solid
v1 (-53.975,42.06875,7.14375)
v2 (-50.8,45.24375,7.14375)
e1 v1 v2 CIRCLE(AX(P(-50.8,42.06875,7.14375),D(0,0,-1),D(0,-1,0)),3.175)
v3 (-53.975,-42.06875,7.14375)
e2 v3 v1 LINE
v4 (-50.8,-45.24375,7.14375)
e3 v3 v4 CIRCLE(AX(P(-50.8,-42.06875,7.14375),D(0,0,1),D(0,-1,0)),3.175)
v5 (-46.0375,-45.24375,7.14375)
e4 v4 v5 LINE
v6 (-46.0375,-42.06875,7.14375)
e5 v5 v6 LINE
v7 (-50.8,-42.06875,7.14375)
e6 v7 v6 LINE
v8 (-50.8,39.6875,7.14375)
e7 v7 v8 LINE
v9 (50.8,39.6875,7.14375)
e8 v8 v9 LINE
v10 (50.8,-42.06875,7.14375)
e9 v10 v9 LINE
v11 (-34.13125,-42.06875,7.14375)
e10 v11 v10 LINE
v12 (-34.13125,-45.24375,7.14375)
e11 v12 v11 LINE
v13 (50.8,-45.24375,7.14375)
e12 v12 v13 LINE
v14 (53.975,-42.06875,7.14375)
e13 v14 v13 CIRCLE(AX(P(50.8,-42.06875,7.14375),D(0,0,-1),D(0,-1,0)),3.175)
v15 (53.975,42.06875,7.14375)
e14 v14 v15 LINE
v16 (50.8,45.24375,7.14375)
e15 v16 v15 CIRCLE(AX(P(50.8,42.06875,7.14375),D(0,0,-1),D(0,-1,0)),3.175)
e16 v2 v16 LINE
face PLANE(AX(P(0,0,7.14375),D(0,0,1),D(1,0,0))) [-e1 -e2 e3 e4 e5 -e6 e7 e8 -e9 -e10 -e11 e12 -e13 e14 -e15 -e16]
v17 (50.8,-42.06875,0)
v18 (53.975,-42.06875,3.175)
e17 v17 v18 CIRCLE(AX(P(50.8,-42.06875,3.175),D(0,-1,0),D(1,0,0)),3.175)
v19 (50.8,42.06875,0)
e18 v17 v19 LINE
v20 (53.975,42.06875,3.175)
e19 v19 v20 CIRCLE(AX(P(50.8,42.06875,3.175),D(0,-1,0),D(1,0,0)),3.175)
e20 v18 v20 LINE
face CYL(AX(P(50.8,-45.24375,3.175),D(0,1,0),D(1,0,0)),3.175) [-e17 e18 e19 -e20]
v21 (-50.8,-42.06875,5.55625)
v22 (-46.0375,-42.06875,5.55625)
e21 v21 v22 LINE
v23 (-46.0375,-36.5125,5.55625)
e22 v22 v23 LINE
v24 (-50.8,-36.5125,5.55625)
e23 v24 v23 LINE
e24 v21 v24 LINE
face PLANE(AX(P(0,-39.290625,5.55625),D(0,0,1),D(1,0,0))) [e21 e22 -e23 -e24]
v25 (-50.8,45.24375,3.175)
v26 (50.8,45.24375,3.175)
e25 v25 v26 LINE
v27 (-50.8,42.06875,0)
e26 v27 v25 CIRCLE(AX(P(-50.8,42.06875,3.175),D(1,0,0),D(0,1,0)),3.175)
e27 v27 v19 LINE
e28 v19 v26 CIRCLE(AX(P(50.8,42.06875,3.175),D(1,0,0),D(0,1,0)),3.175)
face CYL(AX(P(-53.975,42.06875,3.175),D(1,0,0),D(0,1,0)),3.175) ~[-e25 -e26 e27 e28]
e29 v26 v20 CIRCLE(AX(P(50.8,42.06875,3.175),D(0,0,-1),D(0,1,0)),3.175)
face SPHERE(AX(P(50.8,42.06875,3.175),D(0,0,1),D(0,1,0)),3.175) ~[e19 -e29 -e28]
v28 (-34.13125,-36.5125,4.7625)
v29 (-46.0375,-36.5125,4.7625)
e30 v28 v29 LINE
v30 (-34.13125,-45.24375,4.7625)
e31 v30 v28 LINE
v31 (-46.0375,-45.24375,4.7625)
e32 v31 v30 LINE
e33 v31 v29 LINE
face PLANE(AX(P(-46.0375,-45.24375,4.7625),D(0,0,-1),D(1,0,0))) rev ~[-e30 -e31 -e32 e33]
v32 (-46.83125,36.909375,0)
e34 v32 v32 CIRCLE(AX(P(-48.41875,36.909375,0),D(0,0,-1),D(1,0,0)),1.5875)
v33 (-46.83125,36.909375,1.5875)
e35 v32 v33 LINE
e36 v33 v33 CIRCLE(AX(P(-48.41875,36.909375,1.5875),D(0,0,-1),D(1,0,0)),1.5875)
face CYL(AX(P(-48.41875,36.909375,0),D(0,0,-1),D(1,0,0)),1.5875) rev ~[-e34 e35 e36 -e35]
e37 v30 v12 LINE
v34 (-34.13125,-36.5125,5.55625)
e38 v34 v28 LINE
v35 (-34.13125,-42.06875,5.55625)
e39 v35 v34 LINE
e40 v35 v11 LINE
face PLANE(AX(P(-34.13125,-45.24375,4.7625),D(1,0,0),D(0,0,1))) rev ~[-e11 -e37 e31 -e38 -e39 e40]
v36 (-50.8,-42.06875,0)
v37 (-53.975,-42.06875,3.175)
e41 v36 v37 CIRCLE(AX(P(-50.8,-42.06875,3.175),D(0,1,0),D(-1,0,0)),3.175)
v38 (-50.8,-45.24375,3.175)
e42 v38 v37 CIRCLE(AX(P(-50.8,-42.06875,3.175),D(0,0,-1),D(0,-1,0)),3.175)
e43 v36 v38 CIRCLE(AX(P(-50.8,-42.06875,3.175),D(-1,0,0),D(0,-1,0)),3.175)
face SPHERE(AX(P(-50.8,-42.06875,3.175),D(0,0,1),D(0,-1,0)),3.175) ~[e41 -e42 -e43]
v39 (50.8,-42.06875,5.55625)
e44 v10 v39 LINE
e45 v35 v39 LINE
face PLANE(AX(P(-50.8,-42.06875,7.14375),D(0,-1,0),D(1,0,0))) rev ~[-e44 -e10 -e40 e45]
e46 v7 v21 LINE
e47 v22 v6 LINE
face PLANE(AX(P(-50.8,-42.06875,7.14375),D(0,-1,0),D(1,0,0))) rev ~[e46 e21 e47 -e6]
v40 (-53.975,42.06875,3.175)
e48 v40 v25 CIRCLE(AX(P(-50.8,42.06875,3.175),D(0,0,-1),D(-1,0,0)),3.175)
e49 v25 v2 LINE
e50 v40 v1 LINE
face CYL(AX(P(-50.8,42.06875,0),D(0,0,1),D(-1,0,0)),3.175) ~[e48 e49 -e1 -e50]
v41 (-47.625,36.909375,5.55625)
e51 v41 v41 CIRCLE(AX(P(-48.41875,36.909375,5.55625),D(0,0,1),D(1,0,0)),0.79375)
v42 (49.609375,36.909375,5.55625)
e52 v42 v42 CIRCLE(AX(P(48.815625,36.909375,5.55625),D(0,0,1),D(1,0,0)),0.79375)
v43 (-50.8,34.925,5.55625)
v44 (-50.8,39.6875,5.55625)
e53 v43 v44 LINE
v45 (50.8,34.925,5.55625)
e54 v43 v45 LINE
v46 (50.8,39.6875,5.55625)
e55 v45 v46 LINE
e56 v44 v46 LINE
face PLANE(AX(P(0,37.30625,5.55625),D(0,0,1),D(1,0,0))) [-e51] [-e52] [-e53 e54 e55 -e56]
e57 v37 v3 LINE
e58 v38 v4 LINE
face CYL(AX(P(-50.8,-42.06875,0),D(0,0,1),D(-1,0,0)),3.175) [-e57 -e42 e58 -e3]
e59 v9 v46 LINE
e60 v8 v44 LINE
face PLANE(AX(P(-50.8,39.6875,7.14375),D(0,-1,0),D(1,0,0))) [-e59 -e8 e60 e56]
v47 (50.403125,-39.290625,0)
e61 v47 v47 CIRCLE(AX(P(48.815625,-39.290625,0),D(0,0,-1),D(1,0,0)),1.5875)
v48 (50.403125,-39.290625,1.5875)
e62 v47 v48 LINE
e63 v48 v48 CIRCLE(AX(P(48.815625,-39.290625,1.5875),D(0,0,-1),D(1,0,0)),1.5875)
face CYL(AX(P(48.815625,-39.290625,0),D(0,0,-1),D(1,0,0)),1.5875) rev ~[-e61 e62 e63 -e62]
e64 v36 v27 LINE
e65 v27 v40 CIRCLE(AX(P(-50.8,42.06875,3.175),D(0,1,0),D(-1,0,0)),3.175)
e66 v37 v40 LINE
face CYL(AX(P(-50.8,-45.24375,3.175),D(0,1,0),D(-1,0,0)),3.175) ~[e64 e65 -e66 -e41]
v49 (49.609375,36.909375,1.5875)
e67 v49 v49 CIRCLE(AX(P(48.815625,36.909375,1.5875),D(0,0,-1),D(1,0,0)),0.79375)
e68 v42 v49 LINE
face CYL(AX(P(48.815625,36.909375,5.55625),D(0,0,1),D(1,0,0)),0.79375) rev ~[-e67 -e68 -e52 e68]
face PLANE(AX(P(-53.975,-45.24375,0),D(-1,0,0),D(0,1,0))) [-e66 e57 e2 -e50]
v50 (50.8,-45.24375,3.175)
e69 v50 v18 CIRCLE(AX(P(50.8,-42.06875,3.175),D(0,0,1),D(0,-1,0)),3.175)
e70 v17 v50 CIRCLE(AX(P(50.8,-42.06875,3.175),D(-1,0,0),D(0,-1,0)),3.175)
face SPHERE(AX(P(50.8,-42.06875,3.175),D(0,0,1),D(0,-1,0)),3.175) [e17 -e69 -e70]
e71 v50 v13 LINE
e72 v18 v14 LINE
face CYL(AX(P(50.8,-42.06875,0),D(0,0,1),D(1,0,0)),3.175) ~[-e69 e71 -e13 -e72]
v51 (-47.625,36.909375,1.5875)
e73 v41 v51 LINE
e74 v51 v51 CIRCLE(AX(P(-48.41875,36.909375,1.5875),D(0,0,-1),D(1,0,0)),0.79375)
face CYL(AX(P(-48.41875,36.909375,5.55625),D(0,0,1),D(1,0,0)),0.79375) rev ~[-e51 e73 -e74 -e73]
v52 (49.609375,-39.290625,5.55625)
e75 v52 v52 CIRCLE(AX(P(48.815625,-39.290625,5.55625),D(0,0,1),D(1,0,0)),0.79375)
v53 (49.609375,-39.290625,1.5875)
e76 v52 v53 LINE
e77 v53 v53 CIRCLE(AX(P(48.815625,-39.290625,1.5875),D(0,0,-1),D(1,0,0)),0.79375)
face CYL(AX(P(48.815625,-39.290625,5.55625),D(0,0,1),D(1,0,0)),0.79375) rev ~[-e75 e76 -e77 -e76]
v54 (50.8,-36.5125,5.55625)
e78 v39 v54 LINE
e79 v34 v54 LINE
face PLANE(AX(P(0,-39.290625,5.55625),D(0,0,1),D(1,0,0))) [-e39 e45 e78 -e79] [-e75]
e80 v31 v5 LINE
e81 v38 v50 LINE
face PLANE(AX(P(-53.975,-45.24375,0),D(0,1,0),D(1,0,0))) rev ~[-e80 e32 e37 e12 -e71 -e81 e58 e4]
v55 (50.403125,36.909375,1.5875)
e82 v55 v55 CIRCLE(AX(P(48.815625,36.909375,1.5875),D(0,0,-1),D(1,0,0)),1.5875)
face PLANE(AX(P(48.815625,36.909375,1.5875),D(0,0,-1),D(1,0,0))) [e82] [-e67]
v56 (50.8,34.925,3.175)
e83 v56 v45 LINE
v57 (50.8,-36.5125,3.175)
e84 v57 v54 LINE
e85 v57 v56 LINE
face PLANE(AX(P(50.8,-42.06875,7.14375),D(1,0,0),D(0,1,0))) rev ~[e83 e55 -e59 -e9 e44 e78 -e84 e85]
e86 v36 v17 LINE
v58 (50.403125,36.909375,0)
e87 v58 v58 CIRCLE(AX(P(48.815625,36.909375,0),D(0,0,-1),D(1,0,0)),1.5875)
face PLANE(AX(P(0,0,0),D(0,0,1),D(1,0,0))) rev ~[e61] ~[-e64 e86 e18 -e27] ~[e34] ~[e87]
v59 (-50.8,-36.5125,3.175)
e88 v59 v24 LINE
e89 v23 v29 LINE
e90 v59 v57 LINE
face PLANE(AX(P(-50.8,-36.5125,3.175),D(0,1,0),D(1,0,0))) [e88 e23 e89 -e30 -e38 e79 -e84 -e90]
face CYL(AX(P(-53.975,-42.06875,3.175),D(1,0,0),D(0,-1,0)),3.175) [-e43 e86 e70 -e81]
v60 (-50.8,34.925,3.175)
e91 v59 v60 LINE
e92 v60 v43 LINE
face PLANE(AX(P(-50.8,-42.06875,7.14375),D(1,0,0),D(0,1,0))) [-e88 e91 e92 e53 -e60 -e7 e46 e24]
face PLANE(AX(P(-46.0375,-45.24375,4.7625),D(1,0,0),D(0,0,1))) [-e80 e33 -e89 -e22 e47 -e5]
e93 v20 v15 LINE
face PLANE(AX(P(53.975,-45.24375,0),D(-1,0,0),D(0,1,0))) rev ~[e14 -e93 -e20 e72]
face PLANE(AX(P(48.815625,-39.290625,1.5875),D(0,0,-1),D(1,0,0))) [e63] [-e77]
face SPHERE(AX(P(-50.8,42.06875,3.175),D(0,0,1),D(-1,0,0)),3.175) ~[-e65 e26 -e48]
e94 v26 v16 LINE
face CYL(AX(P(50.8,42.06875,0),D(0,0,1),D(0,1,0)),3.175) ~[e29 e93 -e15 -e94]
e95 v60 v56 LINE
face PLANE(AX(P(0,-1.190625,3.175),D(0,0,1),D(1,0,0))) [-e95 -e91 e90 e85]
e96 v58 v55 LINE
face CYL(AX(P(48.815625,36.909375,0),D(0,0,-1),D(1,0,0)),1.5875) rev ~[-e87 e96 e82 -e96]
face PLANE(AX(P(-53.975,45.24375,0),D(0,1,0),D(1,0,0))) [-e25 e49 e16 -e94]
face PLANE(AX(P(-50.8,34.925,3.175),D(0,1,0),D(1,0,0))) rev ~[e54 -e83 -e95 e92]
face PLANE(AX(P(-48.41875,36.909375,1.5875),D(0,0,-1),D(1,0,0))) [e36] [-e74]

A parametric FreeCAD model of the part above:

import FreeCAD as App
import Part
import Sketcher
Q = App.Units.Quantity


def edges_at(feature, points):
    """Names of the edges that pass closest to the given points."""
    edges = feature.Shape.Edges
    near = lambda p: min(range(len(edges)), key=lambda i: edges[i].distToShape(Part.Vertex(*p))[0])
    return sorted({f"Edge{near(p) + 1}" for p in points})


def add_polygon(sketch, points):
    """Adds a closed chain of lines whose ends are joined by coincident constraints."""
    first, n = sketch.GeometryCount, len(points)
    for a, b in zip(points, points[1:] + points[:1]):
        sketch.addGeometry(Part.LineSegment(App.Vector(*a, 0), App.Vector(*b, 0)), False)
    for i in range(n):
        sketch.addConstraint(Sketcher.Constraint("Coincident", first + i, 2, first + (i + 1) % n, 1))

doc = App.newDocument("Part")
body = doc.addObject("PartDesign::Body", "Body")

# Sketch on XY plane
sketch1 = doc.addObject("Sketcher::SketchObject", "Sketch")
body.addObject(sketch1)
sketch1.AttachmentSupport = (doc.XY_Plane, [""])
sketch1.MapMode = "FlatFace"
add_polygon(sketch1, [(-54, 45), (-54, -45), (54, -45), (54, 45)])  # lines 0-3
sketch1.addConstraint([
    Sketcher.Constraint("Vertical", 0),
    Sketcher.Constraint("Horizontal", 1),
    Sketcher.Constraint("Vertical", 2),
    Sketcher.Constraint("Horizontal", 3),
    Sketcher.Constraint("Symmetric", 0, 2, 2, 2, -1, 1),
    Sketcher.Constraint("DistanceX", 1, 1, 1, 2, Q("4.25 in")),
    Sketcher.Constraint("DistanceY", 0, 2, 0, 1, Q("3.5625 in")),
])
pad1 = doc.addObject("PartDesign::Pad", "Pad")
body.addObject(pad1)
pad1.Profile = sketch1
pad1.Length = Q("0.28125 in")

# Sketch on XY plane
sketch2 = doc.addObject("Sketcher::SketchObject", "Sketch001")
body.addObject(sketch2)
sketch2.AttachmentSupport = (doc.XY_Plane, [""])
sketch2.MapMode = "FlatFace"
sketch2.AttachmentOffset = App.Placement(App.Vector(0, 0, 0.28125 * 25.4), App.Rotation())
add_polygon(sketch2, [(-51, 40), (-51, -42), (51, -42), (51, 40)])  # lines 0-3
sketch2.addConstraint([
    Sketcher.Constraint("Vertical", 0),
    Sketcher.Constraint("Horizontal", 1),
    Sketcher.Constraint("Vertical", 2),
    Sketcher.Constraint("Horizontal", 3),
    Sketcher.Constraint("DistanceX", 1, 1, 1, 2, Q("4 in")),
    Sketcher.Constraint("DistanceX", 0, 2, -1, 1, Q("2 in")),
    Sketcher.Constraint("DistanceY", 0, 2, 0, 1, Q("3.21875 in")),
    Sketcher.Constraint("DistanceY", 0, 2, -1, 1, Q("1.65625 in")),
])
pocket1 = doc.addObject("PartDesign::Pocket", "Pocket")
body.addObject(pocket1)
pocket1.Profile = sketch2
pocket1.Length = Q("0.15625 in")

# Sketch on XY plane
sketch3 = doc.addObject("Sketcher::SketchObject", "Sketch002")
body.addObject(sketch3)
sketch3.AttachmentSupport = (doc.XY_Plane, [""])
sketch3.MapMode = "FlatFace"
sketch3.AttachmentOffset = App.Placement(App.Vector(0, 0, 0.125 * 25.4), App.Rotation())
add_polygon(sketch3, [(-50.8, 39.7), (-50.8, 34.9), (50.8, 34.9), (50.8, 39.7)])  # lines 0-3
add_polygon(sketch3, [(-50.8, -36.5), (-50.8, -42.1), (50.8, -42.1), (50.8, -36.5)])  # lines 4-7
sketch3.addConstraint([
    Sketcher.Constraint("Vertical", 0),
    Sketcher.Constraint("Horizontal", 1),
    Sketcher.Constraint("Vertical", 2),
    Sketcher.Constraint("Horizontal", 3),
    Sketcher.Constraint("Vertical", 4),
    Sketcher.Constraint("Horizontal", 5),
    Sketcher.Constraint("Vertical", 6),
    Sketcher.Constraint("Horizontal", 7),
    Sketcher.Constraint("Vertical", 3, 2, 4, 2),
    Sketcher.Constraint("Vertical", 2, 2, 5, 2),
    Sketcher.Constraint("DistanceX", 1, 1, 1, 2, Q("4 in")),
    Sketcher.Constraint("DistanceX", 0, 2, -1, 1, Q("2 in")),
    Sketcher.Constraint("DistanceY", 6, 2, 2, 2, Q("3 in")),
    Sketcher.Constraint("DistanceY", 0, 2, 0, 1, Q("0.1875 in")),
    Sketcher.Constraint("DistanceY", 4, 2, 4, 1, Q("0.21875 in")),
    Sketcher.Constraint("DistanceY", -1, 1, 0, 2, Q("1.375 in")),
])
pad2 = doc.addObject("PartDesign::Pad", "Pad001")
body.addObject(pad2)
pad2.Profile = sketch3
pad2.Length = Q("0.09375 in")

# Sketch on XZ plane
sketch4 = doc.addObject("Sketcher::SketchObject", "Sketch003")
body.addObject(sketch4)
sketch4.AttachmentSupport = (doc.XZ_Plane, [""])
sketch4.MapMode = "FlatFace"
sketch4.AttachmentOffset = App.Placement(App.Vector(0, 0, 1.78125 * 25.4), App.Rotation())
add_polygon(sketch4, [(-46, 7.1), (-46, 4.8), (-34.1, 4.8), (-34.1, 7.1)])  # lines 0-3
sketch4.addConstraint([
    Sketcher.Constraint("Vertical", 0),
    Sketcher.Constraint("Horizontal", 1),
    Sketcher.Constraint("Vertical", 2),
    Sketcher.Constraint("Horizontal", 3),
    Sketcher.Constraint("DistanceX", 1, 1, 1, 2, Q("0.46875 in")),
    Sketcher.Constraint("DistanceY", 0, 2, 0, 1, Q("0.09375 in")),
    Sketcher.Constraint("DistanceX", 0, 2, -1, 1, Q("1.8125 in")),
    Sketcher.Constraint("DistanceY", -1, 1, 0, 2, Q("0.1875 in")),
])
pocket2 = doc.addObject("PartDesign::Pocket", "Pocket001")
body.addObject(pocket2)
pocket2.Profile = sketch4
pocket2.Length = Q("1 in")

# Sketch on XY plane
sketch5 = doc.addObject("Sketcher::SketchObject", "Sketch004")
body.addObject(sketch5)
sketch5.AttachmentSupport = (doc.XY_Plane, [""])
sketch5.MapMode = "FlatFace"
sketch5.AttachmentOffset = App.Placement(App.Vector(0, 0, 0.21875 * 25.4), App.Rotation())
sketch5.addGeometry([
    Part.Circle(App.Vector(48.8, 36.9, 0), App.Vector(0, 0, 1), 0.8),
    Part.Circle(App.Vector(48.8, -39.3, 0), App.Vector(0, 0, 1), 0.8),
    Part.Circle(App.Vector(-48.4, 36.9, 0), App.Vector(0, 0, 1), 0.8),
], False)
sketch5.addConstraint([
    Sketcher.Constraint("Equal", 0, 1),
    Sketcher.Constraint("Equal", 1, 2),
    Sketcher.Constraint("Horizontal", 0, 3, 2, 3),
    Sketcher.Constraint("Vertical", 0, 3, 1, 3),
    Sketcher.Constraint("Diameter", 0, Q("0.0625 in")),
    Sketcher.Constraint("DistanceY", 1, 3, 0, 3, Q("3 in")),
    Sketcher.Constraint("DistanceX", -1, 1, 0, 3, Q("1.921875 in")),
    Sketcher.Constraint("DistanceY", -1, 1, 0, 3, Q("1.453125 in")),
    Sketcher.Constraint("DistanceX", 2, 3, -1, 1, Q("1.90625 in")),
])
pocket3 = doc.addObject("PartDesign::Pocket", "Pocket002")
body.addObject(pocket3)
pocket3.Profile = sketch5
pocket3.Length = Q("1 in")
doc.recompute()

fillet = doc.addObject("PartDesign::Fillet", "Fillet")
body.addObject(fillet)
fillet.Base = (pocket3, edges_at(pocket3, [
    (53.975, -45.244, 3.572),
    (53.975, 45.244, 3.572),
    (-53.975, 45.244, 3.572),
    (-53.975, -45.244, 3.572),
    (0, -45.244, 0),
    (-53.975, 0, 0),
    (0, 45.244, 0),
    (53.975, 0, 0),
]))
fillet.Radius = Q("0.125 in")

# Sketch on XY plane
sketch6 = doc.addObject("Sketcher::SketchObject", "Sketch005")
body.addObject(sketch6)
sketch6.AttachmentSupport = (doc.XY_Plane, [""])
sketch6.MapMode = "FlatFace"
sketch6.addGeometry([
    Part.Circle(App.Vector(-48.4, 36.9, 0), App.Vector(0, 0, 1), 1.6),  # 0
    Part.Circle(App.Vector(-48.4, 36.9, 0), App.Vector(0, 0, 1), 0.8),  # 1
    Part.Circle(App.Vector(48.8, 36.9, 0), App.Vector(0, 0, 1), 1.6),  # 2
    Part.Circle(App.Vector(48.8, 36.9, 0), App.Vector(0, 0, 1), 0.8),  # 3
    Part.Circle(App.Vector(48.8, -39.3, 0), App.Vector(0, 0, 1), 1.6),  # 4
    Part.Circle(App.Vector(48.8, -39.3, 0), App.Vector(0, 0, 1), 0.8),  # 5
], False)
sketch6.addConstraint([
    Sketcher.Constraint("Coincident", 1, 3, 0, 3),
    Sketcher.Constraint("Coincident", 3, 3, 2, 3),
    Sketcher.Constraint("Coincident", 5, 3, 4, 3),
    Sketcher.Constraint("Equal", 0, 2),
    Sketcher.Constraint("Equal", 1, 3),
    Sketcher.Constraint("Equal", 2, 4),
    Sketcher.Constraint("Equal", 3, 5),
    Sketcher.Constraint("Horizontal", 1, 3, 2, 3),
    Sketcher.Constraint("Vertical", 3, 3, 4, 3),
    Sketcher.Constraint("Diameter", 0, Q("0.125 in")),
    Sketcher.Constraint("Diameter", 1, Q("0.0625 in")),
    Sketcher.Constraint("DistanceY", 4, 3, 2, 3, Q("3 in")),
    Sketcher.Constraint("DistanceX", 0, 3, -1, 1, Q("1.90625 in")),
    Sketcher.Constraint("DistanceY", -1, 1, 0, 3, Q("1.453125 in")),
    Sketcher.Constraint("DistanceX", -1, 1, 2, 3, Q("1.921875 in")),
])
pocket4 = doc.addObject("PartDesign::Pocket", "Pocket003")
body.addObject(pocket4)
pocket4.Profile = sketch6
pocket4.Length = Q("0.0625 in")
pocket4.Reversed = True

doc.recompute()
